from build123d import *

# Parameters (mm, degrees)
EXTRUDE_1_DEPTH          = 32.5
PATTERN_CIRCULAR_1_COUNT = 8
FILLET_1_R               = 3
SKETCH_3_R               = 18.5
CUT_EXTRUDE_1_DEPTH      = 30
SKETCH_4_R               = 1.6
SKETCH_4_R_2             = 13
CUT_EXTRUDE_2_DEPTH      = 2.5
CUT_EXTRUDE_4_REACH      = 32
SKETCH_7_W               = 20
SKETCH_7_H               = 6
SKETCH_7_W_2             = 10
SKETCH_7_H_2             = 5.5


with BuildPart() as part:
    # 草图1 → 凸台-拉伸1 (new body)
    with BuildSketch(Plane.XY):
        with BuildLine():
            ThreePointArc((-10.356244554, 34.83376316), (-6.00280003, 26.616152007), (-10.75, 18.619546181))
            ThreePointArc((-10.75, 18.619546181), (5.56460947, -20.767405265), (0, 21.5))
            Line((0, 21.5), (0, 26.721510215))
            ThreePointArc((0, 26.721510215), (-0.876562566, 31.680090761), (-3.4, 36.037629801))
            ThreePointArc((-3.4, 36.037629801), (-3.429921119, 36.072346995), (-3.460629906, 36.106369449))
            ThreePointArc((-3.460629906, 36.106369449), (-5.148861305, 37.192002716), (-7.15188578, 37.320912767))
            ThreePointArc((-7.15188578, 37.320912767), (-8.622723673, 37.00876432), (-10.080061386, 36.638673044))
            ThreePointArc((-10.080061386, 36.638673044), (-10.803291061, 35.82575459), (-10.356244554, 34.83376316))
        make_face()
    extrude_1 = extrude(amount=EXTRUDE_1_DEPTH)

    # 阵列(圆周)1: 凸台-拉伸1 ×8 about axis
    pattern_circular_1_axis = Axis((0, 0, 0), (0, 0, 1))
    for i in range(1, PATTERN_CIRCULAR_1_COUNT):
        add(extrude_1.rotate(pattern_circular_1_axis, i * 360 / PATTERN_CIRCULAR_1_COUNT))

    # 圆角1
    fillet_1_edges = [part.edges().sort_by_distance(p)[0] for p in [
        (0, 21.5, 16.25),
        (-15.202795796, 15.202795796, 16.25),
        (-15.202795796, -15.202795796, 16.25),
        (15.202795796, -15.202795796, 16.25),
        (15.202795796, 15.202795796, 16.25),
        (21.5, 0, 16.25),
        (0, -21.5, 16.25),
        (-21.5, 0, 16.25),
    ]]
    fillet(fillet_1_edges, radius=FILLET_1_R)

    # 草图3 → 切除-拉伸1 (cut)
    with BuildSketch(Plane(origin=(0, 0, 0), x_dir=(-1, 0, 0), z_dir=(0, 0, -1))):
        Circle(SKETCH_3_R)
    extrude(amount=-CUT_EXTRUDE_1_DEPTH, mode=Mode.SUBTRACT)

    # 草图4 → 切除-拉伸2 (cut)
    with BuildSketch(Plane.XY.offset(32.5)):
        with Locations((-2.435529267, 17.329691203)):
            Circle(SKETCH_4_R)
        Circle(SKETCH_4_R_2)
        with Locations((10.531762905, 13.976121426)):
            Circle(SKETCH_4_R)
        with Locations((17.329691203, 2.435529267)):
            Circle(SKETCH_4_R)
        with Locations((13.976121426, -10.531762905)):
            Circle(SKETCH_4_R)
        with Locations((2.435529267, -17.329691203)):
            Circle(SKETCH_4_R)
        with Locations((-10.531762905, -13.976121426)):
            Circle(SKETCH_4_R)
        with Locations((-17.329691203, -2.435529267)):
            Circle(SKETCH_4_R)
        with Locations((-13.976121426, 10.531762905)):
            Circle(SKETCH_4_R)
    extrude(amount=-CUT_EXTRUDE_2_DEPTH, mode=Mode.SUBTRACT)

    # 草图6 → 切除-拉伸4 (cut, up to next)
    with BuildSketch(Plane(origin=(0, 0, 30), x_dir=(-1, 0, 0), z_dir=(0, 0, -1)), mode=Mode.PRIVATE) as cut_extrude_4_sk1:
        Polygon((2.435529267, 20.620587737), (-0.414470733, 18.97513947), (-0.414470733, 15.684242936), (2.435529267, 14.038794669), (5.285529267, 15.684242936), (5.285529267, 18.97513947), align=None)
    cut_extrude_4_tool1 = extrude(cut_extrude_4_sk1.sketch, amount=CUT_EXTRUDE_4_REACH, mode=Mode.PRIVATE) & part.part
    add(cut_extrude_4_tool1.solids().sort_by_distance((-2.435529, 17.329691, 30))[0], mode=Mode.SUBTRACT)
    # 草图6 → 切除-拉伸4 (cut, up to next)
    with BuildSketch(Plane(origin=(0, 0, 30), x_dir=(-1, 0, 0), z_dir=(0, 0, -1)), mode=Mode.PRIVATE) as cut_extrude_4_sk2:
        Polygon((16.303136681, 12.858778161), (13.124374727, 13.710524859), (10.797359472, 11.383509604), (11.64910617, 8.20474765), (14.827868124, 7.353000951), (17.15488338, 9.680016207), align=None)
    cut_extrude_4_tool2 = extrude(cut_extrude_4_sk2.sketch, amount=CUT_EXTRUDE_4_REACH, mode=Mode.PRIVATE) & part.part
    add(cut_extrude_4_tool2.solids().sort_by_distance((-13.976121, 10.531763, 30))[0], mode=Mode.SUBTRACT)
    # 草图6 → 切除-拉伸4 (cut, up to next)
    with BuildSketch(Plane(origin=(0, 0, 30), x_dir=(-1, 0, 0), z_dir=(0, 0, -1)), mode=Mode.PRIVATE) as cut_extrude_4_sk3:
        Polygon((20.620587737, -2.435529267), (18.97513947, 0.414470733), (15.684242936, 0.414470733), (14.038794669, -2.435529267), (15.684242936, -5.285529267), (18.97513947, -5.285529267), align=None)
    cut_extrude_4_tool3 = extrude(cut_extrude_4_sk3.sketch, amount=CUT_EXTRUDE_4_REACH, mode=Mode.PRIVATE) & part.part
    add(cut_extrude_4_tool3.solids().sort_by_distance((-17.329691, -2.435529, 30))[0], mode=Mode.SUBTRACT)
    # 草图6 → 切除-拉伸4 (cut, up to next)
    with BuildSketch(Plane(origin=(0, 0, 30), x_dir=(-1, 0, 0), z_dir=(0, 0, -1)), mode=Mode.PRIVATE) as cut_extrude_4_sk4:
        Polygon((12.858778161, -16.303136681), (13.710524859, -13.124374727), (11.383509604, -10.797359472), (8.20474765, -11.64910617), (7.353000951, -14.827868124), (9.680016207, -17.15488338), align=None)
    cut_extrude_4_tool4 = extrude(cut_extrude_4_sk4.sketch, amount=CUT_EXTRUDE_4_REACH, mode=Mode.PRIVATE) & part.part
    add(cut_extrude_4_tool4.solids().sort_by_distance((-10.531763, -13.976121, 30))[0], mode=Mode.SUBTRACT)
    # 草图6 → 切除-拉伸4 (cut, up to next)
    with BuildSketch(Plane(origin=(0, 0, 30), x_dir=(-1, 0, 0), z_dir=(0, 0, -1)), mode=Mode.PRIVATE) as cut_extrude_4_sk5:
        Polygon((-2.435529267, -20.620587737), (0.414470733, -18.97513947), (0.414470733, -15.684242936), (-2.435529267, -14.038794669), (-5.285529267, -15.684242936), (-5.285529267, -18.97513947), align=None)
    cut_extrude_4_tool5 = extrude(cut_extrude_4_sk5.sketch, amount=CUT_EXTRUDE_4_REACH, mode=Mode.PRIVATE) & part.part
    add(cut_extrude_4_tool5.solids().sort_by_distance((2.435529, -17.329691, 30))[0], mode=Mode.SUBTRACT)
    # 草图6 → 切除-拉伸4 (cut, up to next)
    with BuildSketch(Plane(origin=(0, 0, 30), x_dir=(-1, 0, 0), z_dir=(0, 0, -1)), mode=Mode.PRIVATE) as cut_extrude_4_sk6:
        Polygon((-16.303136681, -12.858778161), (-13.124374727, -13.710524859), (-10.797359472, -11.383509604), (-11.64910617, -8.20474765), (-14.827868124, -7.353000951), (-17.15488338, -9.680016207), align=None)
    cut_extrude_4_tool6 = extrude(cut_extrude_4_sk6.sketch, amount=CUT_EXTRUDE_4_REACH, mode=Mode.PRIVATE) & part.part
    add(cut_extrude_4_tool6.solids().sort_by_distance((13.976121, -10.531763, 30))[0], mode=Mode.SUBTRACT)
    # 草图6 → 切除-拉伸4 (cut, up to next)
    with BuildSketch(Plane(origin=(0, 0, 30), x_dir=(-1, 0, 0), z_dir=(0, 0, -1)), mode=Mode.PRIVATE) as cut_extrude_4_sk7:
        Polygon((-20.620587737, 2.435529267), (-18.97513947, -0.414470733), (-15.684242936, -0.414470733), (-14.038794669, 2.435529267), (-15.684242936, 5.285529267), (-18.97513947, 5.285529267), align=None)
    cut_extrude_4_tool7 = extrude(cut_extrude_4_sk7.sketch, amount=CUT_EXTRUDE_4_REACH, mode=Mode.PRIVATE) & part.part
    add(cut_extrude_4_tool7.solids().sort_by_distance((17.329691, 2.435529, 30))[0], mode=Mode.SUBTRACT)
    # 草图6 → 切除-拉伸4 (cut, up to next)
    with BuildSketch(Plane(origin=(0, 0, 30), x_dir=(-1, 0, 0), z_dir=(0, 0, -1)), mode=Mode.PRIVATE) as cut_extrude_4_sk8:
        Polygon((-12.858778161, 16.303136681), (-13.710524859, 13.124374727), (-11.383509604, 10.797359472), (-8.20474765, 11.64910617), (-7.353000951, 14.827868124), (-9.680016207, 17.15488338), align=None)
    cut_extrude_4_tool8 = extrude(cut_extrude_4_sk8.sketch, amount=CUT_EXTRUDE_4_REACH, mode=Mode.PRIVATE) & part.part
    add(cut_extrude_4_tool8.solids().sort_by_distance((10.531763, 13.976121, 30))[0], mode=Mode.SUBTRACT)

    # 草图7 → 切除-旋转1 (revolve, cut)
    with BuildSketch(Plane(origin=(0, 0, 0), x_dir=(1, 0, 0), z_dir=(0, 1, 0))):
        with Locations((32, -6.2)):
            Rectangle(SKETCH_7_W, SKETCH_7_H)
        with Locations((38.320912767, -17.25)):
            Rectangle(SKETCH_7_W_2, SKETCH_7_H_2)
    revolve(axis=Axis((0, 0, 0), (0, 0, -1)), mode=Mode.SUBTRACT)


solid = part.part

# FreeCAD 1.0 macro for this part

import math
import FreeCAD as App
import Part
import Sketcher

V = App.Vector
Q = App.Units.Quantity


def edges_at(feature, points):
    """Names of the edges that pass closest to the given points."""
    edges = feature.Shape.Edges
    near = lambda p: min(range(len(edges)), key=lambda i: edges[i].distToShape(Part.Vertex(*p))[0])
    return sorted({f"Edge{near(p) + 1}" for p in points})

doc = App.newDocument("Part")
body = doc.addObject("PartDesign::Body", "Body")

# Sketch on XY plane
sketch1 = doc.addObject("Sketcher::SketchObject", "Sketch")
body.addObject(sketch1)
sketch1.AttachmentSupport = (doc.XY_Plane, [""])
sketch1.MapMode = "FlatFace"
sketch1.addGeometry([
    Part.ArcOfCircle(Part.Circle(V(-15.5, 26.85, 0), V(0, 0, 1), 9.5), math.radians(-60), math.radians(57)),  # 0
    Part.ArcOfCircle(Part.Circle(V(0, 0, 0), V(0, 0, 1), 21.5), math.radians(120), math.radians(450)),  # 1
    Part.LineSegment(V(0, 21.5, 0), V(0, 26.72, 0)),  # 2
    Part.ArcOfCircle(Part.Circle(V(-14.46, 26.72, 0), V(0, 0, 1), 14.46), math.radians(0), math.radians(40)),  # 3
    Part.ArcOfCircle(Part.Circle(V(-4.93, 34.75, 0), V(0, 0, 1), 2), math.radians(40.1), math.radians(42.73)),  # 4
    Part.ArcOfCircle(Part.Circle(V(-6.4, 33.39, 0), V(0, 0, 1), 4), math.radians(43), math.radians(101)),  # 5
    Part.ArcOfCircle(Part.Circle(V(0, 0, 0), V(0, 0, 1), 38), math.radians(100.85), math.radians(105.38)),  # 6
    Part.ArcOfCircle(Part.Circle(V(-9.81, 35.67, 0), V(0, 0, 1), 1), math.radians(105), math.radians(237)),  # 7
], False)
sketch1.addConstraint([
    Sketcher.Constraint("Tangent", 0, 1, 1, 1),
    Sketcher.Constraint("Coincident", 1, 2, 2, 1),
    Sketcher.Constraint("Tangent", 2, 2, 3, 1),
    Sketcher.Constraint("Tangent", 3, 2, 4, 1),
    Sketcher.Constraint("Tangent", 4, 2, 5, 1),
    Sketcher.Constraint("Tangent", 5, 2, 6, 1),
    Sketcher.Constraint("Tangent", 6, 2, 7, 1),
    Sketcher.Constraint("Tangent", 7, 2, 0, 2),
    Sketcher.Constraint("Vertical", 2),
    Sketcher.Constraint("Coincident", 1, 3, -1, 1),
    Sketcher.Constraint("Coincident", 6, 3, -1, 1),
    Sketcher.Constraint("PointOnObject", 1, 2, -2),
    Sketcher.Constraint("Radius", 4, 2.0),
    Sketcher.Constraint("Radius", 5, 4.0),
    Sketcher.Constraint("Radius", 6, 37.999999),
    Sketcher.Constraint("Radius", 7, 1.0),
    Sketcher.Constraint("Radius", 0, 9.5),
    Sketcher.Constraint("Radius", 1, 21.5),
    Sketcher.Constraint("DistanceX", 0, 3, -1, 1, 15.5),
    Sketcher.Constraint("DistanceX", 3, 2, -1, 1, 3.4),
    Sketcher.Constraint("Radius", 3, 14.463248),
    Sketcher.Constraint("DistanceY", 2, 1, 2, 2, 5.22151),
])
pad1 = doc.addObject("PartDesign::Pad", "Pad")
body.addObject(pad1)
pad1.Profile = sketch1
pad1.Length = 32.5
doc.recompute()

polarpattern = doc.addObject("PartDesign::PolarPattern", "PolarPattern")
body.addObject(polarpattern)
polarpattern.Originals = [pad1]
polarpattern.Axis = (doc.Z_Axis, [""])
polarpattern.Angle = 360
polarpattern.Occurrences = 8
body.Tip = polarpattern
doc.recompute()

fillet = doc.addObject("PartDesign::Fillet", "Fillet")
body.addObject(fillet)
fillet.Base = (polarpattern, edges_at(polarpattern, [
    (0, 21.5, 16.25),
    (-15.203, 15.203, 16.25),
    (-15.203, -15.203, 16.25),
    (15.203, -15.203, 16.25),
    (15.203, 15.203, 16.25),
    (21.5, 0, 16.25),
    (0, -21.5, 16.25),
    (-21.5, 0, 16.25),
]))
fillet.Radius = 3

# Sketch on XY plane
sketch2 = doc.addObject("Sketcher::SketchObject", "Sketch001")
body.addObject(sketch2)
sketch2.AttachmentSupport = (doc.XY_Plane, [""])
sketch2.MapMode = "FlatFace"
sketch2.addGeometry(Part.Circle(V(0, 0, 0), V(0, 0, 1), 18), False)
sketch2.addConstraint([
    Sketcher.Constraint("Coincident", 0, 3, -1, 1),
    Sketcher.Constraint("Diameter", 0, 37.0),
])
pocket1 = doc.addObject("PartDesign::Pocket", "Pocket")
body.addObject(pocket1)
pocket1.Profile = sketch2
pocket1.Length = 30
pocket1.Reversed = True

# Sketch on XY plane
sketch3 = doc.addObject("Sketcher::SketchObject", "Sketch002")
body.addObject(sketch3)
sketch3.AttachmentSupport = (doc.XY_Plane, [""])
sketch3.MapMode = "FlatFace"
sketch3.AttachmentOffset = App.Placement(V(0, 0, 32.5), App.Rotation())
sketch3.addGeometry([
    Part.Circle(V(-2.4, 17.3, 0), V(0, 0, 1), 1.6),  # 0
    Part.Circle(V(0, 0, 0), V(0, 0, 1), 13),  # 1
    Part.Circle(V(10.5, 14, 0), V(0, 0, 1), 1.6),  # 2
    Part.Circle(V(17.3, 2.4, 0), V(0, 0, 1), 1.6),  # 3
    Part.Circle(V(14, -10.5, 0), V(0, 0, 1), 1.6),  # 4
    Part.Circle(V(2.4, -17.3, 0), V(0, 0, 1), 1.6),  # 5
    Part.Circle(V(-10.5, -14, 0), V(0, 0, 1), 1.6),  # 6
    Part.Circle(V(-17.3, -2.4, 0), V(0, 0, 1), 1.6),  # 7
    Part.Circle(V(-14, 10.5, 0), V(0, 0, 1), 1.6),  # 8
], False)
sketch3.addConstraint([
    Sketcher.Constraint("Coincident", 1, 3, -1, 1),
    Sketcher.Constraint("Equal", 0, 2),
    Sketcher.Constraint("Equal", 2, 3),
    Sketcher.Constraint("Equal", 3, 4),
    Sketcher.Constraint("Equal", 4, 5),
    Sketcher.Constraint("Equal", 5, 6),
    Sketcher.Constraint("Equal", 6, 7),
    Sketcher.Constraint("Equal", 7, 8),
    Sketcher.Constraint("Symmetric", 0, 3, 5, 3, -1, 1),
    Sketcher.Constraint("Symmetric", 2, 3, 6, 3, -1, 1),
    Sketcher.Constraint("Symmetric", 3, 3, 7, 3, -1, 1),
    Sketcher.Constraint("Symmetric", 4, 3, 8, 3, -1, 1),
    Sketcher.Constraint("Diameter", 1, 26.0),
    Sketcher.Constraint("Diameter", 0, 3.2),
    Sketcher.Constraint("DistanceX", 0, 3, -1, 1, 2.435529),
    Sketcher.Constraint("DistanceY", -1, 1, 0, 3, 17.329691),
    Sketcher.Constraint("DistanceY", -1, 1, 2, 3, 13.976121),
    Sketcher.Constraint("DistanceX", -1, 1, 3, 3, 17.329691),
    Sketcher.Constraint("DistanceY", -1, 1, 3, 3, 2.435529),
    Sketcher.Constraint("DistanceX", -1, 1, 4, 3, 13.976121),
    Sketcher.Constraint("DistanceX", 2, 3, 3, 3, 6.797928),
    Sketcher.Constraint("DistanceY", 5, 3, 4, 3, 6.797928),
])
pocket2 = doc.addObject("PartDesign::Pocket", "Pocket001")
body.addObject(pocket2)
pocket2.Profile = sketch3
pocket2.Length = 2.5

# Sketch on XY plane
sketch4 = doc.addObject("Sketcher::SketchObject", "Sketch003")
body.addObject(sketch4)
sketch4.AttachmentSupport = (doc.XY_Plane, [""])
sketch4.MapMode = "FlatFace"
sketch4.AttachmentOffset = App.Placement(V(0, 0, 30), App.Rotation())
sketch4.addGeometry([
    Part.LineSegment(V(-2.4, 20.6, 0), V(0.4, 19, 0)),  # 0
    Part.LineSegment(V(0.4, 19, 0), V(0.4, 15.7, 0)),  # 1
    Part.LineSegment(V(0.4, 15.7, 0), V(-2.4, 14, 0)),  # 2
    Part.LineSegment(V(-2.4, 14, 0), V(-5.3, 15.7, 0)),  # 3
    Part.LineSegment(V(-5.3, 15.7, 0), V(-5.3, 19, 0)),  # 4
    Part.LineSegment(V(-5.3, 19, 0), V(-2.4, 20.6, 0)),  # 5
], False)
sketch4.addConstraint([
    Sketcher.Constraint("Coincident", 0, 2, 1, 1),
    Sketcher.Constraint("Coincident", 1, 2, 2, 1),
    Sketcher.Constraint("Coincident", 2, 2, 3, 1),
    Sketcher.Constraint("Coincident", 3, 2, 4, 1),
    Sketcher.Constraint("Coincident", 4, 2, 5, 1),
    Sketcher.Constraint("Coincident", 5, 2, 0, 1),
    Sketcher.Constraint("Vertical", 1),
    Sketcher.Constraint("Vertical", 4),
    Sketcher.Constraint("Parallel", 0, 3),
    Sketcher.Constraint("Parallel", 2, 5),
    Sketcher.Constraint("Horizontal", 1, 2, 3, 2),
    Sketcher.Constraint("Horizontal", 0, 2, 4, 2),
    Sketcher.Constraint("Vertical", 2, 2, 5, 2),
    Sketcher.Constraint("Angle", 0, Q("-30 deg")),
    Sketcher.Constraint("DistanceX", 3, 2, 1, 2, 5.7),
    Sketcher.Constraint("DistanceY", 1, 2, 1, 1, 3.290897),
    Sketcher.Constraint("DistanceX", -1, 1, 0, 2, 0.414471),
    Sketcher.Constraint("DistanceY", -1, 1, 0, 2, 18.975139),
])
pocket3 = doc.addObject("PartDesign::Pocket", "Pocket002")
body.addObject(pocket3)
pocket3.Profile = sketch4
pocket3.Length = 30

# Sketch on XY plane
sketch5 = doc.addObject("Sketcher::SketchObject", "Sketch004")
body.addObject(sketch5)
sketch5.AttachmentSupport = (doc.XY_Plane, [""])
sketch5.MapMode = "FlatFace"
sketch5.AttachmentOffset = App.Placement(V(0, 0, 30), App.Rotation())
sketch5.addGeometry([
    Part.LineSegment(V(-16.3, 12.9, 0), V(-13.1, 13.7, 0)),  # 0
    Part.LineSegment(V(-13.1, 13.7, 0), V(-10.8, 11.4, 0)),  # 1
    Part.LineSegment(V(-10.8, 11.4, 0), V(-11.6, 8.2, 0)),  # 2
    Part.LineSegment(V(-11.6, 8.2, 0), V(-14.8, 7.4, 0)),  # 3
    Part.LineSegment(V(-14.8, 7.4, 0), V(-17.2, 9.7, 0)),  # 4
    Part.LineSegment(V(-17.2, 9.7, 0), V(-16.3, 12.9, 0)),  # 5
], False)
sketch5.addConstraint([
    Sketcher.Constraint("Coincident", 0, 2, 1, 1),
    Sketcher.Constraint("Coincident", 1, 2, 2, 1),
    Sketcher.Constraint("Coincident", 2, 2, 3, 1),
    Sketcher.Constraint("Coincident", 3, 2, 4, 1),
    Sketcher.Constraint("Coincident", 4, 2, 5, 1),
    Sketcher.Constraint("Coincident", 5, 2, 0, 1),
    Sketcher.Constraint("Parallel", 0, 3),
    Sketcher.Constraint("Parallel", 1, 4),
    Sketcher.Constraint("Parallel", 2, 5),
    Sketcher.Constraint("Equal", 0, 1),
    Sketcher.Constraint("Equal", 1, 2),
    Sketcher.Constraint("Equal", 2, 3),
    Sketcher.Constraint("Angle", 0, Q("15 deg")),
    Sketcher.Constraint("Angle", 1, Q("-45 deg")),
    Sketcher.Constraint("Angle", 2, Q("-105 deg")),
    Sketcher.Constraint("DistanceY", -1, 1, 3, 2, 7.353001),
    Sketcher.Constraint("DistanceX", 1, 2, -1, 1, 10.797359),
    Sketcher.Constraint("DistanceY", -1, 1, 1, 2, 11.38351),
])
pocket4 = doc.addObject("PartDesign::Pocket", "Pocket003")
body.addObject(pocket4)
pocket4.Profile = sketch5
pocket4.Length = 30

# Sketch on XY plane
sketch6 = doc.addObject("Sketcher::SketchObject", "Sketch005")
body.addObject(sketch6)
sketch6.AttachmentSupport = (doc.XY_Plane, [""])
sketch6.MapMode = "FlatFace"
sketch6.AttachmentOffset = App.Placement(V(0, 0, 30), App.Rotation())
sketch6.addGeometry([
    Part.LineSegment(V(-20.6, -2.4, 0), V(-19, 0.4, 0)),  # 0
    Part.LineSegment(V(-19, 0.4, 0), V(-15.7, 0.4, 0)),  # 1
    Part.LineSegment(V(-15.7, 0.4, 0), V(-14, -2.4, 0)),  # 2
    Part.LineSegment(V(-14, -2.4, 0), V(-15.7, -5.3, 0)),  # 3
    Part.LineSegment(V(-15.7, -5.3, 0), V(-19, -5.3, 0)),  # 4
    Part.LineSegment(V(-19, -5.3, 0), V(-20.6, -2.4, 0)),  # 5
], False)
sketch6.addConstraint([
    Sketcher.Constraint("Coincident", 0, 2, 1, 1),
    Sketcher.Constraint("Coincident", 1, 2, 2, 1),
    Sketcher.Constraint("Coincident", 2, 2, 3, 1),
    Sketcher.Constraint("Coincident", 3, 2, 4, 1),
    Sketcher.Constraint("Coincident", 4, 2, 5, 1),
    Sketcher.Constraint("Coincident", 5, 2, 0, 1),
    Sketcher.Constraint("Horizontal", 1),
    Sketcher.Constraint("Horizontal", 4),
    Sketcher.Constraint("Parallel", 0, 3),
    Sketcher.Constraint("Parallel", 2, 5),
    Sketcher.Constraint("Horizontal", 2, 2, 5, 2),
    Sketcher.Constraint("Vertical", 1, 2, 3, 2),
    Sketcher.Constraint("Vertical", 0, 2, 4, 2),
    Sketcher.Constraint("Angle", 0, Q("60 deg")),
    Sketcher.Constraint("DistanceY", 3, 2, 1, 2, 5.7),
    Sketcher.Constraint("DistanceX", 1, 1, 1, 2, 3.290897),
    Sketcher.Constraint("DistanceX", 0, 2, -1, 1, 18.975139),
    Sketcher.Constraint("DistanceY", -1, 1, 0, 2, 0.414471),
])
pocket5 = doc.addObject("PartDesign::Pocket", "Pocket004")
body.addObject(pocket5)
pocket5.Profile = sketch6
pocket5.Length = 30

# Sketch on XY plane
sketch7 = doc.addObject("Sketcher::SketchObject", "Sketch006")
body.addObject(sketch7)
sketch7.AttachmentSupport = (doc.XY_Plane, [""])
sketch7.MapMode = "FlatFace"
sketch7.AttachmentOffset = App.Placement(V(0, 0, 30), App.Rotation())
sketch7.addGeometry([
    Part.LineSegment(V(-12.9, -16.3, 0), V(-13.7, -13.1, 0)),  # 0
    Part.LineSegment(V(-13.7, -13.1, 0), V(-11.4, -10.8, 0)),  # 1
    Part.LineSegment(V(-11.4, -10.8, 0), V(-8.2, -11.6, 0)),  # 2
    Part.LineSegment(V(-8.2, -11.6, 0), V(-7.4, -14.8, 0)),  # 3
    Part.LineSegment(V(-7.4, -14.8, 0), V(-9.7, -17.2, 0)),  # 4
    Part.LineSegment(V(-9.7, -17.2, 0), V(-12.9, -16.3, 0)),  # 5
], False)
sketch7.addConstraint([
    Sketcher.Constraint("Coincident", 0, 2, 1, 1),
    Sketcher.Constraint("Coincident", 1, 2, 2, 1),
    Sketcher.Constraint("Coincident", 2, 2, 3, 1),
    Sketcher.Constraint("Coincident", 3, 2, 4, 1),
    Sketcher.Constraint("Coincident", 4, 2, 5, 1),
    Sketcher.Constraint("Coincident", 5, 2, 0, 1),
    Sketcher.Constraint("Parallel", 0, 3),
    Sketcher.Constraint("Parallel", 1, 4),
    Sketcher.Constraint("Parallel", 2, 5),
    Sketcher.Constraint("Equal", 0, 1),
    Sketcher.Constraint("Equal", 1, 2),
    Sketcher.Constraint("Equal", 2, 3),
    Sketcher.Constraint("Angle", 0, Q("105 deg")),
    Sketcher.Constraint("Angle", 1, Q("45 deg")),
    Sketcher.Constraint("Angle", 2, Q("-15 deg")),
    Sketcher.Constraint("DistanceX", 3, 2, -1, 1, 7.353001),
    Sketcher.Constraint("DistanceX", 1, 2, -1, 1, 11.38351),
    Sketcher.Constraint("DistanceY", 1, 2, -1, 1, 10.797359),
])
pocket6 = doc.addObject("PartDesign::Pocket", "Pocket005")
body.addObject(pocket6)
pocket6.Profile = sketch7
pocket6.Length = 30

# Sketch on XY plane
sketch8 = doc.addObject("Sketcher::SketchObject", "Sketch007")
body.addObject(sketch8)
sketch8.AttachmentSupport = (doc.XY_Plane, [""])
sketch8.MapMode = "FlatFace"
sketch8.AttachmentOffset = App.Placement(V(0, 0, 30), App.Rotation())
sketch8.addGeometry([
    Part.LineSegment(V(2.4, -20.6, 0), V(-0.4, -19, 0)),  # 0
    Part.LineSegment(V(-0.4, -19, 0), V(-0.4, -15.7, 0)),  # 1
    Part.LineSegment(V(-0.4, -15.7, 0), V(2.4, -14, 0)),  # 2
    Part.LineSegment(V(2.4, -14, 0), V(5.3, -15.7, 0)),  # 3
    Part.LineSegment(V(5.3, -15.7, 0), V(5.3, -19, 0)),  # 4
    Part.LineSegment(V(5.3, -19, 0), V(2.4, -20.6, 0)),  # 5
], False)
sketch8.addConstraint([
    Sketcher.Constraint("Coincident", 0, 2, 1, 1),
    Sketcher.Constraint("Coincident", 1, 2, 2, 1),
    Sketcher.Constraint("Coincident", 2, 2, 3, 1),
    Sketcher.Constraint("Coincident", 3, 2, 4, 1),
    Sketcher.Constraint("Coincident", 4, 2, 5, 1),
    Sketcher.Constraint("Coincident", 5, 2, 0, 1),
    Sketcher.Constraint("Vertical", 1),
    Sketcher.Constraint("Vertical", 4),
    Sketcher.Constraint("Parallel", 0, 3),
    Sketcher.Constraint("Parallel", 2, 5),
    Sketcher.Constraint("Horizontal", 1, 2, 3, 2),
    Sketcher.Constraint("Horizontal", 0, 2, 4, 2),
    Sketcher.Constraint("Vertical", 2, 2, 5, 2),
    Sketcher.Constraint("Angle", 0, Q("150 deg")),
    Sketcher.Constraint("DistanceX", 1, 2, 3, 2, 5.7),
    Sketcher.Constraint("DistanceY", 1, 1, 1, 2, 3.290897),
    Sketcher.Constraint("DistanceX", 0, 2, -1, 1, 0.414471),
    Sketcher.Constraint("DistanceY", 0, 2, -1, 1, 18.975139),
])
pocket7 = doc.addObject("PartDesign::Pocket", "Pocket006")
body.addObject(pocket7)
pocket7.Profile = sketch8
pocket7.Length = 30

# Sketch on XY plane
sketch9 = doc.addObject("Sketcher::SketchObject", "Sketch008")
body.addObject(sketch9)
sketch9.AttachmentSupport = (doc.XY_Plane, [""])
sketch9.MapMode = "FlatFace"
sketch9.AttachmentOffset = App.Placement(V(0, 0, 30), App.Rotation())
sketch9.addGeometry([
    Part.LineSegment(V(16.3, -12.9, 0), V(13.1, -13.7, 0)),  # 0
    Part.LineSegment(V(13.1, -13.7, 0), V(10.8, -11.4, 0)),  # 1
    Part.LineSegment(V(10.8, -11.4, 0), V(11.6, -8.2, 0)),  # 2
    Part.LineSegment(V(11.6, -8.2, 0), V(14.8, -7.4, 0)),  # 3
    Part.LineSegment(V(14.8, -7.4, 0), V(17.2, -9.7, 0)),  # 4
    Part.LineSegment(V(17.2, -9.7, 0), V(16.3, -12.9, 0)),  # 5
], False)
sketch9.addConstraint([
    Sketcher.Constraint("Coincident", 0, 2, 1, 1),
    Sketcher.Constraint("Coincident", 1, 2, 2, 1),
    Sketcher.Constraint("Coincident", 2, 2, 3, 1),
    Sketcher.Constraint("Coincident", 3, 2, 4, 1),
    Sketcher.Constraint("Coincident", 4, 2, 5, 1),
    Sketcher.Constraint("Coincident", 5, 2, 0, 1),
    Sketcher.Constraint("Parallel", 0, 3),
    Sketcher.Constraint("Parallel", 1, 4),
    Sketcher.Constraint("Parallel", 2, 5),
    Sketcher.Constraint("Equal", 0, 1),
    Sketcher.Constraint("Equal", 1, 2),
    Sketcher.Constraint("Equal", 2, 3),
    Sketcher.Constraint("Angle", 0, Q("-165 deg")),
    Sketcher.Constraint("Angle", 1, Q("135 deg")),
    Sketcher.Constraint("Angle", 2, Q("75 deg")),
    Sketcher.Constraint("DistanceY", 3, 2, -1, 1, 7.353001),
    Sketcher.Constraint("DistanceX", -1, 1, 1, 2, 10.797359),
    Sketcher.Constraint("DistanceY", 1, 2, -1, 1, 11.38351),
])
pocket8 = doc.addObject("PartDesign::Pocket", "Pocket007")
body.addObject(pocket8)
pocket8.Profile = sketch9
pocket8.Length = 30

# Sketch on XY plane
sketch10 = doc.addObject("Sketcher::SketchObject", "Sketch009")
body.addObject(sketch10)
sketch10.AttachmentSupport = (doc.XY_Plane, [""])
sketch10.MapMode = "FlatFace"
sketch10.AttachmentOffset = App.Placement(V(0, 0, 30), App.Rotation())
sketch10.addGeometry([
    Part.LineSegment(V(20.6, 2.4, 0), V(19, -0.4, 0)),  # 0
    Part.LineSegment(V(19, -0.4, 0), V(15.7, -0.4, 0)),  # 1
    Part.LineSegment(V(15.7, -0.4, 0), V(14, 2.4, 0)),  # 2
    Part.LineSegment(V(14, 2.4, 0), V(15.7, 5.3, 0)),  # 3
    Part.LineSegment(V(15.7, 5.3, 0), V(19, 5.3, 0)),  # 4
    Part.LineSegment(V(19, 5.3, 0), V(20.6, 2.4, 0)),  # 5
], False)
sketch10.addConstraint([
    Sketcher.Constraint("Coincident", 0, 2, 1, 1),
    Sketcher.Constraint("Coincident", 1, 2, 2, 1),
    Sketcher.Constraint("Coincident", 2, 2, 3, 1),
    Sketcher.Constraint("Coincident", 3, 2, 4, 1),
    Sketcher.Constraint("Coincident", 4, 2, 5, 1),
    Sketcher.Constraint("Coincident", 5, 2, 0, 1),
    Sketcher.Constraint("Horizontal", 1),
    Sketcher.Constraint("Horizontal", 4),
    Sketcher.Constraint("Parallel", 0, 3),
    Sketcher.Constraint("Parallel", 2, 5),
    Sketcher.Constraint("Horizontal", 2, 2, 5, 2),
    Sketcher.Constraint("Vertical", 1, 2, 3, 2),
    Sketcher.Constraint("Vertical", 0, 2, 4, 2),
    Sketcher.Constraint("Angle", 0, Q("-120 deg")),
    Sketcher.Constraint("DistanceY", 1, 2, 3, 2, 5.7),
    Sketcher.Constraint("DistanceX", 1, 2, 1, 1, 3.290897),
    Sketcher.Constraint("DistanceX", -1, 1, 0, 2, 18.975139),
    Sketcher.Constraint("DistanceY", 0, 2, -1, 1, 0.414471),
])
pocket9 = doc.addObject("PartDesign::Pocket", "Pocket008")
body.addObject(pocket9)
pocket9.Profile = sketch10
pocket9.Length = 30

# Sketch on XY plane
sketch11 = doc.addObject("Sketcher::SketchObject", "Sketch010")
body.addObject(sketch11)
sketch11.AttachmentSupport = (doc.XY_Plane, [""])
sketch11.MapMode = "FlatFace"
sketch11.AttachmentOffset = App.Placement(V(0, 0, 30), App.Rotation())
sketch11.addGeometry([
    Part.LineSegment(V(12.9, 16.3, 0), V(13.7, 13.1, 0)),  # 0
    Part.LineSegment(V(13.7, 13.1, 0), V(11.4, 10.8, 0)),  # 1
    Part.LineSegment(V(11.4, 10.8, 0), V(8.2, 11.6, 0)),  # 2
    Part.LineSegment(V(8.2, 11.6, 0), V(7.4, 14.8, 0)),  # 3
    Part.LineSegment(V(7.4, 14.8, 0), V(9.7, 17.2, 0)),  # 4
    Part.LineSegment(V(9.7, 17.2, 0), V(12.9, 16.3, 0)),  # 5
], False)
sketch11.addConstraint([
    Sketcher.Constraint("Coincident", 0, 2, 1, 1),
    Sketcher.Constraint("Coincident", 1, 2, 2, 1),
    Sketcher.Constraint("Coincident", 2, 2, 3, 1),
    Sketcher.Constraint("Coincident", 3, 2, 4, 1),
    Sketcher.Constraint("Coincident", 4, 2, 5, 1),
    Sketcher.Constraint("Coincident", 5, 2, 0, 1),
    Sketcher.Constraint("Parallel", 0, 3),
    Sketcher.Constraint("Parallel", 1, 4),
    Sketcher.Constraint("Parallel", 2, 5),
    Sketcher.Constraint("Equal", 0, 1),
    Sketcher.Constraint("Equal", 1, 2),
    Sketcher.Constraint("Equal", 2, 3),
    Sketcher.Constraint("Angle", 0, Q("-75 deg")),
    Sketcher.Constraint("Angle", 1, Q("-135 deg")),
    Sketcher.Constraint("Angle", 2, Q("165 deg")),
    Sketcher.Constraint("DistanceX", -1, 1, 3, 2, 7.353001),
    Sketcher.Constraint("DistanceX", -1, 1, 1, 2, 11.38351),
    Sketcher.Constraint("DistanceY", -1, 1, 1, 2, 10.797359),
])
pocket10 = doc.addObject("PartDesign::Pocket", "Pocket009")
body.addObject(pocket10)
pocket10.Profile = sketch11
pocket10.Length = 30

# Sketch on XZ plane
sketch12 = doc.addObject("Sketcher::SketchObject", "Sketch011")
body.addObject(sketch12)
sketch12.AttachmentSupport = (doc.XZ_Plane, [""])
sketch12.MapMode = "FlatFace"
sketch12.addGeometry([
    Part.LineSegment(V(22, 3, 0), V(22, 9, 0)),  # 0
    Part.LineSegment(V(22, 9, 0), V(42, 9, 0)),  # 1
    Part.LineSegment(V(42, 9, 0), V(42, 3, 0)),  # 2
    Part.LineSegment(V(42, 3, 0), V(22, 3, 0)),  # 3
    Part.LineSegment(V(33, 14, 0), V(33, 20, 0)),  # 4
    Part.LineSegment(V(33, 20, 0), V(43, 20, 0)),  # 5
    Part.LineSegment(V(43, 20, 0), V(43, 14, 0)),  # 6
    Part.LineSegment(V(43, 14, 0), V(33, 14, 0)),  # 7
], False)
sketch12.addConstraint([
    Sketcher.Constraint("Coincident", 0, 2, 1, 1),
    Sketcher.Constraint("Coincident", 1, 2, 2, 1),
    Sketcher.Constraint("Coincident", 2, 2, 3, 1),
    Sketcher.Constraint("Coincident", 3, 2, 0, 1),
    Sketcher.Constraint("Coincident", 4, 2, 5, 1),
    Sketcher.Constraint("Coincident", 5, 2, 6, 1),
    Sketcher.Constraint("Coincident", 6, 2, 7, 1),
    Sketcher.Constraint("Coincident", 7, 2, 4, 1),
    Sketcher.Constraint("Vertical", 0),
    Sketcher.Constraint("Horizontal", 1),
    Sketcher.Constraint("Vertical", 2),
    Sketcher.Constraint("Horizontal", 3),
    Sketcher.Constraint("Vertical", 4),
    Sketcher.Constraint("Horizontal", 5),
    Sketcher.Constraint("Vertical", 6),
    Sketcher.Constraint("Horizontal", 7),
    Sketcher.Constraint("DistanceX", 1, 1, 1, 2, 20.0),
    Sketcher.Constraint("DistanceX", 5, 1, 5, 2, 10.0),
    Sketcher.Constraint("DistanceY", 0, 1, 0, 2, 6.0),
    Sketcher.Constraint("DistanceY", 4, 1, 4, 2, 5.5),
    Sketcher.Constraint("DistanceX", -1, 1, 0, 2, 22.0),
    Sketcher.Constraint("DistanceY", -1, 1, 4, 2, 20.0),
    Sketcher.Constraint("DistanceY", -1, 1, 0, 2, 9.2),
    Sketcher.Constraint("DistanceX", -1, 1, 4, 2, 33.320913),
])
groove = doc.addObject("PartDesign::Groove", "Groove")
body.addObject(groove)
groove.Profile = sketch12
groove.ReferenceAxis = (sketch12, ["V_Axis"])
groove.Angle = 360

doc.recompute()
